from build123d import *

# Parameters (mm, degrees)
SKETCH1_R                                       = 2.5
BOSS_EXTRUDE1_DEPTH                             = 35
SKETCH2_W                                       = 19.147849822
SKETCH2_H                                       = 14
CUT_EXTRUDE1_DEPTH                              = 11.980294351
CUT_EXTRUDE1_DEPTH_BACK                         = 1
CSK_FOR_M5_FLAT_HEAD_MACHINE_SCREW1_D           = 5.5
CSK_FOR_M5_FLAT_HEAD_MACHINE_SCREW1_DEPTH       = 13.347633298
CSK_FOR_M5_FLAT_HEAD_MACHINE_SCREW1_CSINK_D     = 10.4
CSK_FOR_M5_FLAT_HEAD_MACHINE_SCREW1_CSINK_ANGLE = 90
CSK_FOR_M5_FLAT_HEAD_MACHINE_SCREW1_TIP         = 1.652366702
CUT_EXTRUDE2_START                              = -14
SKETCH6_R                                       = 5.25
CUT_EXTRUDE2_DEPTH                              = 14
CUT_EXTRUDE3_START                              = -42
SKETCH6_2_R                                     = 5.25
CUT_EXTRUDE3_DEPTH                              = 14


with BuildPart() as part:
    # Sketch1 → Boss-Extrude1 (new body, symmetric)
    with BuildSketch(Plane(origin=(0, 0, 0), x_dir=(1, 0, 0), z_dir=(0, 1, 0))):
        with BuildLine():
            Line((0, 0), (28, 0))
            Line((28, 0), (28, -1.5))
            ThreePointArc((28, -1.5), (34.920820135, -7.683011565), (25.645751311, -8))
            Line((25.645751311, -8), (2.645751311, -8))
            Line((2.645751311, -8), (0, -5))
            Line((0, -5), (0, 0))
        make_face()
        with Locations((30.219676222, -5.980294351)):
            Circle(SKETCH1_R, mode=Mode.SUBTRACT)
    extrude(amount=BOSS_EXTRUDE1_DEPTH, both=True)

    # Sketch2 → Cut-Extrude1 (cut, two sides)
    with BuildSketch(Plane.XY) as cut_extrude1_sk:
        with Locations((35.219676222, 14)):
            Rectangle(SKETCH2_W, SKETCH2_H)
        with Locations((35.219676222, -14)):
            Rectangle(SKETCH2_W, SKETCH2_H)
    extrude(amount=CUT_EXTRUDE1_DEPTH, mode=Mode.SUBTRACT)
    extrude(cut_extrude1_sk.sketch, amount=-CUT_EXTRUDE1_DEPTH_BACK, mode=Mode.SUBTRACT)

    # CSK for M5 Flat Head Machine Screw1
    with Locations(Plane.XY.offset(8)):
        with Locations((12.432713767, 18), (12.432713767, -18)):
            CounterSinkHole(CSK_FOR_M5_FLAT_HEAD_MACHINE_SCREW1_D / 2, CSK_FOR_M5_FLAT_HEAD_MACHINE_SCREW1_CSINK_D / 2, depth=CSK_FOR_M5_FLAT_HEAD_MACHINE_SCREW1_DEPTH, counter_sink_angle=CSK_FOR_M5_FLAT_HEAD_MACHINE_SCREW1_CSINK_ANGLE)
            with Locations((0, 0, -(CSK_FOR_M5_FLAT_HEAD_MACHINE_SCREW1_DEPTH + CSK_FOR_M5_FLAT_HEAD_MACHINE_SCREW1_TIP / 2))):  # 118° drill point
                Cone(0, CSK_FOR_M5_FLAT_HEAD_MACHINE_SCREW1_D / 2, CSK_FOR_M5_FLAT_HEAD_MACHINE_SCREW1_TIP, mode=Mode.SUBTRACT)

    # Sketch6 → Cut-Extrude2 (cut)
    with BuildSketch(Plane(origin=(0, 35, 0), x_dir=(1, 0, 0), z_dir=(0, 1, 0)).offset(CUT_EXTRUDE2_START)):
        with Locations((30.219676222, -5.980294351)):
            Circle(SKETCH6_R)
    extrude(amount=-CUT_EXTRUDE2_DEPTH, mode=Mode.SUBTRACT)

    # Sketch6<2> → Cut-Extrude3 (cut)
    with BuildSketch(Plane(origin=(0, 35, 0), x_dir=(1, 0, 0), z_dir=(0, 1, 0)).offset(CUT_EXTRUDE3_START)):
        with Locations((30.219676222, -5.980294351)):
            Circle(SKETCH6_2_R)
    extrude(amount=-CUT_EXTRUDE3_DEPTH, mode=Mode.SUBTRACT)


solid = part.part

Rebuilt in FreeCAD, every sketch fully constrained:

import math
import FreeCAD as App
import Part
import Sketcher
Q = App.Units.Quantity


def add_polygon(sketch, points):
    """Adds a closed chain of lines whose ends are joined by coincident constraints."""
    first, n = sketch.GeometryCount, len(points)
    for a, b in zip(points, points[1:] + points[:1]):
        sketch.addGeometry(Part.LineSegment(App.Vector(*a, 0), App.Vector(*b, 0)), False)
    for i in range(n):
        sketch.addConstraint(Sketcher.Constraint("Coincident", first + i, 2, first + (i + 1) % n, 1))

doc = App.newDocument("Part")
body = doc.addObject("PartDesign::Body", "Body")

# Sketch on XZ plane
sketch1 = body.newObject("Sketcher::SketchObject", "Sketch")
sketch1.AttachmentSupport = (doc.getObject("XZ_Plane"), [""])
sketch1.MapMode = "FlatFace"
sketch1.addGeometry([
    Part.LineSegment(App.Vector(28, 0, 0), App.Vector(0, 0, 0)),  # 0
    Part.LineSegment(App.Vector(0, 0, 0), App.Vector(0, 5, 0)),  # 1
    Part.LineSegment(App.Vector(0, 5, 0), App.Vector(2.6, 8, 0)),  # 2
    Part.LineSegment(App.Vector(2.6, 8, 0), App.Vector(25.6, 8, 0)),  # 3
    Part.ArcOfCircle(Part.Circle(App.Vector(30.2, 6, 0), App.Vector(0, 0, 1), 5), math.radians(-116), math.radians(156)),  # 4
    Part.LineSegment(App.Vector(28, 1.5, 0), App.Vector(28, 0, 0)),  # 5
    Part.Circle(App.Vector(30.2, 6, 0), App.Vector(0, 0, 1), 2.5),  # 6
], False)
sketch1.addConstraint([
    Sketcher.Constraint("Coincident", 0, 2, 1, 1),
    Sketcher.Constraint("Coincident", 1, 2, 2, 1),
    Sketcher.Constraint("Coincident", 2, 2, 3, 1),
    Sketcher.Constraint("Coincident", 3, 2, 4, 2),
    Sketcher.Constraint("Coincident", 4, 1, 5, 1),
    Sketcher.Constraint("Coincident", 5, 2, 0, 1),
    Sketcher.Constraint("Horizontal", 0),
    Sketcher.Constraint("Vertical", 1),
    Sketcher.Constraint("Horizontal", 3),
    Sketcher.Constraint("Vertical", 5),
    Sketcher.Constraint("Coincident", 0, 2, -1, 1),
    Sketcher.Constraint("Coincident", 6, 3, 4, 3),
    Sketcher.Constraint("Diameter", 6, Q("5 mm")),
    Sketcher.Constraint("Radius", 4, Q("5 mm")),
    Sketcher.Constraint("DistanceX", 0, 2, 0, 1, Q("28 mm")),
    Sketcher.Constraint("DistanceX", 3, 1, 3, 2, Q("23 mm")),
    Sketcher.Constraint("DistanceY", 1, 1, 1, 2, Q("5 mm")),
    Sketcher.Constraint("Distance", 2, Q("4 mm")),
    Sketcher.Constraint("DistanceY", 5, 2, 5, 1, Q("1.5 mm")),
    Sketcher.Constraint("DistanceY", -1, 1, 2, 2, Q("8 mm")),
])
pad1 = body.newObject("PartDesign::Pad", "Pad")
pad1.Profile = sketch1
pad1.Length = 70
pad1.Midplane = True

# Sketch on XY plane
sketch2 = body.newObject("Sketcher::SketchObject", "Sketch001")
sketch2.AttachmentSupport = (doc.getObject("XY_Plane"), [""])
sketch2.MapMode = "FlatFace"
add_polygon(sketch2, [(26, 21), (26, 7), (45, 7), (45, 21)])  # lines 0-3
add_polygon(sketch2, [(26, -7), (26, -21), (45, -21), (45, -7)])  # lines 4-7
sketch2.addConstraint([
    Sketcher.Constraint("Vertical", 0),
    Sketcher.Constraint("Horizontal", 1),
    Sketcher.Constraint("Vertical", 2),
    Sketcher.Constraint("Horizontal", 3),
    Sketcher.Constraint("Vertical", 4),
    Sketcher.Constraint("Horizontal", 5),
    Sketcher.Constraint("Vertical", 6),
    Sketcher.Constraint("Horizontal", 7),
    Sketcher.Constraint("Symmetric", 3, 2, 4, 2, -1),
    Sketcher.Constraint("Symmetric", 1, 2, 6, 2, -1),
    Sketcher.Constraint("DistanceY", 0, 2, 0, 1, Q("14 mm")),
    Sketcher.Constraint("DistanceY", -1, 1, 0, 2, Q("7 mm")),
    Sketcher.Constraint("DistanceX", 1, 1, 1, 2, Q("19.14785 mm")),
    Sketcher.Constraint("DistanceX", -1, 1, 1, 2, Q("44.793601 mm")),
])
pocket1 = body.newObject("PartDesign::Pocket", "Pocket")
pocket1.Profile = sketch2
pocket1.Type = "ThroughAll"
pocket1.Midplane = True

# Sketch on XY plane
sketch3 = body.newObject("Sketcher::SketchObject", "Sketch002")
sketch3.AttachmentSupport = (doc.getObject("XY_Plane"), [""])
sketch3.MapMode = "FlatFace"
sketch3.AttachmentOffset = App.Placement(App.Vector(0, 0, 8), App.Rotation())
sketch3.addGeometry([
    Part.Circle(App.Vector(12.4, 18, 0), App.Vector(0, 0, 1), 2.8),
    Part.Circle(App.Vector(12.4, -18, 0), App.Vector(0, 0, 1), 2.8),
], False)
sketch3.addConstraint([
    Sketcher.Constraint("Equal", 0, 1),
    Sketcher.Constraint("Symmetric", 0, 3, 1, 3, -1),
    Sketcher.Constraint("Diameter", 0, Q("5.5 mm")),
    Sketcher.Constraint("DistanceY", -1, 1, 0, 3, Q("18 mm")),
    Sketcher.Constraint("DistanceX", -1, 1, 0, 3, Q("12.432714 mm")),
])
doc.recompute()
hole = body.newObject("PartDesign::Hole", "Hole")
hole.Profile = sketch3
hole.ThreadType = "None"
hole.Diameter = 5.5
hole.DepthType = "Dimension"
hole.Depth = 13.347633
hole.DrillPoint = "Angled"
hole.DrillPointAngle = 118
hole.HoleCutType = "Countersink"
hole.HoleCutDiameter = 10.4
hole.HoleCutCountersinkAngle = 90

# Sketch on XZ plane
sketch4 = body.newObject("Sketcher::SketchObject", "Sketch003")
sketch4.AttachmentSupport = (doc.getObject("XZ_Plane"), [""])
sketch4.MapMode = "FlatFace"
sketch4.AttachmentOffset = App.Placement(App.Vector(0, 0, -21), App.Rotation())
sketch4.addGeometry(Part.Circle(App.Vector(30, 6, 0), App.Vector(0, 0, 1), 5), False)
sketch4.addConstraint([
    Sketcher.Constraint("Diameter", 0, Q("10.5 mm")),
    Sketcher.Constraint("DistanceX", -1, 1, 0, 3, Q("30.219676 mm")),
    Sketcher.Constraint("DistanceY", -1, 1, 0, 3, Q("5.980294 mm")),
])
pocket2 = body.newObject("PartDesign::Pocket", "Pocket001")
pocket2.Profile = sketch4
pocket2.Length = 14
pocket2.Reversed = True

# Sketch on XZ plane
sketch5 = body.newObject("Sketcher::SketchObject", "Sketch004")
sketch5.AttachmentSupport = (doc.getObject("XZ_Plane"), [""])
sketch5.MapMode = "FlatFace"
sketch5.AttachmentOffset = App.Placement(App.Vector(0, 0, 7), App.Rotation())
sketch5.addGeometry(Part.Circle(App.Vector(30, 6, 0), App.Vector(0, 0, 1), 5), False)
sketch5.addConstraint([
    Sketcher.Constraint("Diameter", 0, Q("10.5 mm")),
    Sketcher.Constraint("DistanceX", -1, 1, 0, 3, Q("30.219676 mm")),
    Sketcher.Constraint("DistanceY", -1, 1, 0, 3, Q("5.980294 mm")),
])
pocket3 = body.newObject("PartDesign::Pocket", "Pocket002")
pocket3.Profile = sketch5
pocket3.Length = 14
pocket3.Reversed = True

doc.recompute()
